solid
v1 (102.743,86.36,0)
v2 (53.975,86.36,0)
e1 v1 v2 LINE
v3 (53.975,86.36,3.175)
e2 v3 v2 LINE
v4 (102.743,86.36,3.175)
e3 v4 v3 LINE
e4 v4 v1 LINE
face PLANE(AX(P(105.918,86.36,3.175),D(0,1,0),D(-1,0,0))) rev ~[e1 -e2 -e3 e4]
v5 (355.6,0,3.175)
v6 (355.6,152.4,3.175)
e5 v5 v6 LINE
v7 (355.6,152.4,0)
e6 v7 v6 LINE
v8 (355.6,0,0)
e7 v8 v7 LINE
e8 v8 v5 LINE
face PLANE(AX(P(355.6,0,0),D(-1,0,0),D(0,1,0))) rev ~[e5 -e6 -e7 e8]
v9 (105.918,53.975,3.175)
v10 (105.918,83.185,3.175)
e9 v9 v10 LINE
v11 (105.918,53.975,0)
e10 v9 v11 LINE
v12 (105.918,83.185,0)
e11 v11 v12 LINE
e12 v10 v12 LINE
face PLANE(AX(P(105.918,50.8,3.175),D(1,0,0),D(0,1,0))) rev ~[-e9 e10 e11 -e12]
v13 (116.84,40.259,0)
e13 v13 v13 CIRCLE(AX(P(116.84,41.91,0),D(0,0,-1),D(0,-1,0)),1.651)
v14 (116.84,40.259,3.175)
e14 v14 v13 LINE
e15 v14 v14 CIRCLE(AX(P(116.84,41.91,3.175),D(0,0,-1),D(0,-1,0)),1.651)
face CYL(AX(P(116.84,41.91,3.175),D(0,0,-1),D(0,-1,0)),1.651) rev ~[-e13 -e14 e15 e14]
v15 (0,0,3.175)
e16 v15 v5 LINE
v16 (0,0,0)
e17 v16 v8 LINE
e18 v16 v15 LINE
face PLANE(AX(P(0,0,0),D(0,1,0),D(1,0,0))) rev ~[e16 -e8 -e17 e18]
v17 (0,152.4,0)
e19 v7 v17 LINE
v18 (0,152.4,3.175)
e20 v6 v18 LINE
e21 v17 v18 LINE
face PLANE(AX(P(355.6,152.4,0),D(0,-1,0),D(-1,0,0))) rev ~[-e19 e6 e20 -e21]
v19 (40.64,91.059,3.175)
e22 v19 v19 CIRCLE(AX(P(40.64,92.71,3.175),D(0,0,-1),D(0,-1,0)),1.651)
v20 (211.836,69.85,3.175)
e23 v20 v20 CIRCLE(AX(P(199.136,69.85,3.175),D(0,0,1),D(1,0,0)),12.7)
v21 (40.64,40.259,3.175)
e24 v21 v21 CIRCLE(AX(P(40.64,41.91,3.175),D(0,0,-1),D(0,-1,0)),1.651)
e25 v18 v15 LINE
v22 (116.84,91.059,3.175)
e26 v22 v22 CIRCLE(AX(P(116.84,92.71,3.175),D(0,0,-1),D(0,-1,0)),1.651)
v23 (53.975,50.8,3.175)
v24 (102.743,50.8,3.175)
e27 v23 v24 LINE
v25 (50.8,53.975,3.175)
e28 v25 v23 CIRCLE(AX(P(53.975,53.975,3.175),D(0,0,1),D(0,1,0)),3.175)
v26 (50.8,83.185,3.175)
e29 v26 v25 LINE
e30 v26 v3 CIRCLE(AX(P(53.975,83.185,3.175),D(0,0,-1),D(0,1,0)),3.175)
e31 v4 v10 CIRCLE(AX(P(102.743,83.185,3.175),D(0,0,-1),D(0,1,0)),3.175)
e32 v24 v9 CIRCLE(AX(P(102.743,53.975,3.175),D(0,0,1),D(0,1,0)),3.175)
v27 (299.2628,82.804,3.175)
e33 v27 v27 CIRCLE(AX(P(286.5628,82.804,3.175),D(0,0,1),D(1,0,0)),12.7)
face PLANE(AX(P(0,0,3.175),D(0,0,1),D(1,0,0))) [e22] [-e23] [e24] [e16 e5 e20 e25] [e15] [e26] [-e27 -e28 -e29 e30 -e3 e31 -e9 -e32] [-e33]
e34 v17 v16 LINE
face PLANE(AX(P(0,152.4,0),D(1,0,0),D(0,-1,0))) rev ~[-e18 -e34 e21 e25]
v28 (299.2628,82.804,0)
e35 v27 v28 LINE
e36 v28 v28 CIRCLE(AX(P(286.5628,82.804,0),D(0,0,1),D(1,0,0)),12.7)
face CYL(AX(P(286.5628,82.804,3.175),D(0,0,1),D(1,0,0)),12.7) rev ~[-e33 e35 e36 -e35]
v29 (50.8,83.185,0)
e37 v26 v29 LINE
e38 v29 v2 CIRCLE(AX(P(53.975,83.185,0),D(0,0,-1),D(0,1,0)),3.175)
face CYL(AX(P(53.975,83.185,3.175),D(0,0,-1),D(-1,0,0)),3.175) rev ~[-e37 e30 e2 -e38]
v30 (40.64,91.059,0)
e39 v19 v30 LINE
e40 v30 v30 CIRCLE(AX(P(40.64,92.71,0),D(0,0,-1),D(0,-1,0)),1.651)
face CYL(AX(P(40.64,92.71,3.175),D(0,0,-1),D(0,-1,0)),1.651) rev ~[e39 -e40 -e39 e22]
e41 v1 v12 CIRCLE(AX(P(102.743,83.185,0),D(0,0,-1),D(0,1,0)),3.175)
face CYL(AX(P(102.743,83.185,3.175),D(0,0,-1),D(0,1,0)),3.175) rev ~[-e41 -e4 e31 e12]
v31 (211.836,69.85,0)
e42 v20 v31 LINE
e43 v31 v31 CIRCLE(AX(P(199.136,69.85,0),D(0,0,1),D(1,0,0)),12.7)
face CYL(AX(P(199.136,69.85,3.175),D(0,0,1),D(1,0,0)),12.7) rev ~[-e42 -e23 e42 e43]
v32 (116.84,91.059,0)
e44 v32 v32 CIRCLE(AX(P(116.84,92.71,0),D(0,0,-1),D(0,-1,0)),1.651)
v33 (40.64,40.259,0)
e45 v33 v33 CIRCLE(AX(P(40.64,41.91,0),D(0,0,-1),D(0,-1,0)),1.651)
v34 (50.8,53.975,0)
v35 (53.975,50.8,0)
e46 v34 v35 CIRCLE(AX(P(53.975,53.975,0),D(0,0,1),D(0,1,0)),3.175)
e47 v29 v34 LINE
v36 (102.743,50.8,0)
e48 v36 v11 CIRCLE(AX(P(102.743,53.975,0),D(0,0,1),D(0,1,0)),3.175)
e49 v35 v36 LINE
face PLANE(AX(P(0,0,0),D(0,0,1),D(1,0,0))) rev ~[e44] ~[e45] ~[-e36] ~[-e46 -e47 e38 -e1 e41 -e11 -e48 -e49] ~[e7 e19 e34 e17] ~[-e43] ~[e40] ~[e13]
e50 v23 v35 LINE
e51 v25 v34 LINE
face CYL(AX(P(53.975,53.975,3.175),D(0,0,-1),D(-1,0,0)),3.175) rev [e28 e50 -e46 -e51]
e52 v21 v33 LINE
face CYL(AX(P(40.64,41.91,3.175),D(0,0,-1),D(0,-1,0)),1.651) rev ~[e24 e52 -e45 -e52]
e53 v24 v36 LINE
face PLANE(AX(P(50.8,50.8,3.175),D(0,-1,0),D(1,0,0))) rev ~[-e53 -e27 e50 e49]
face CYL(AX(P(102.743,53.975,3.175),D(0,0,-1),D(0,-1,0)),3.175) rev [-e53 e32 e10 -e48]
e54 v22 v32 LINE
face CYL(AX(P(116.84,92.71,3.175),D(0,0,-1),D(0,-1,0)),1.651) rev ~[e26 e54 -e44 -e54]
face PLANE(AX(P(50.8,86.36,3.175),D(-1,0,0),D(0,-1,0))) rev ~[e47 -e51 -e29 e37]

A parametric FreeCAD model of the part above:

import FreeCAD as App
import Part
import Sketcher
Q = App.Units.Quantity


def edges_at(feature, points):
    """Names of the edges that pass closest to the given points."""
    edges = feature.Shape.Edges
    near = lambda p: min(range(len(edges)), key=lambda i: edges[i].distToShape(Part.Vertex(*p))[0])
    return sorted({f"Edge{near(p) + 1}" for p in points})

doc = App.newDocument("Part")
params = doc.addObject("Spreadsheet::Sheet", "Params")
for row, (alias, value) in enumerate([
    ("sketch1_width", "14 in"),
    ("sketch1_height", "6 in"),
    ("pad1_length", "0.125 in"),
    ("sketch2_height", "1.4 in"),
    ("sketch2_width", "2.17 in"),
    ("pocket1_length", "0.125 in"),
    ("sketch3_diameter", "1 in"),
    ("pocket2_length", "0.125 in"),
    ("sketch4_diameter", "0.13 in"),
    ("hole_diameter", "0.13 in"),
    ("fillet_radius", "0.125 in"),
], start=1):
    params.set(f"A{row}", alias)
    params.set(f"B{row}", "=" + value)
    params.setAlias(f"B{row}", alias)

body = doc.addObject("PartDesign::Body", "Body")

sketch1 = doc.addObject("Sketcher::SketchObject", "Sketch")
body.addObject(sketch1)
sketch1.AttachmentSupport = (doc.XY_Plane, [""])
sketch1.MapMode = "FlatFace"
sketch1.addGeometry(Part.LineSegment(App.Vector(0, 152, 0), App.Vector(0, 0, 0)), False)
sketch1.addGeometry(Part.LineSegment(App.Vector(0, 0, 0), App.Vector(356, 0, 0)), False)
sketch1.addGeometry(Part.LineSegment(App.Vector(356, 0, 0), App.Vector(356, 152, 0)), False)
sketch1.addGeometry(Part.LineSegment(App.Vector(356, 152, 0), App.Vector(0, 152, 0)), False)
sketch1.addConstraint(Sketcher.Constraint("Coincident", 0, 2, 1, 1))
sketch1.addConstraint(Sketcher.Constraint("Coincident", 1, 2, 2, 1))
sketch1.addConstraint(Sketcher.Constraint("Coincident", 2, 2, 3, 1))
sketch1.addConstraint(Sketcher.Constraint("Coincident", 3, 2, 0, 1))
sketch1.addConstraint(Sketcher.Constraint("Vertical", 0))
sketch1.addConstraint(Sketcher.Constraint("Horizontal", 1))
sketch1.addConstraint(Sketcher.Constraint("Vertical", 2))
sketch1.addConstraint(Sketcher.Constraint("Horizontal", 3))
sketch1.addConstraint(Sketcher.Constraint("Coincident", 0, 2, -1, 1))
sketch1.addConstraint(Sketcher.Constraint("DistanceX", 1, 1, 1, 2, Q("14 in")))
sketch1.addConstraint(Sketcher.Constraint("DistanceY", 0, 2, 0, 1, Q("6 in")))
sketch1.setExpression("Constraints[9]", "Params.sketch1_width")
sketch1.setExpression("Constraints[10]", "Params.sketch1_height")
pad1 = doc.addObject("PartDesign::Pad", "Pad")
body.addObject(pad1)
pad1.Profile = sketch1
pad1.setExpression("Length", "Params.pad1_length")

sketch2 = doc.addObject("Sketcher::SketchObject", "Sketch001")
body.addObject(sketch2)
sketch2.AttachmentSupport = (doc.XY_Plane, [""])
sketch2.MapMode = "FlatFace"
sketch2.AttachmentOffset = App.Placement(App.Vector(0, 0, 0.125 * 25.4), App.Rotation())
sketch2.addGeometry(Part.LineSegment(App.Vector(51, 86, 0), App.Vector(51, 51, 0)), False)
sketch2.addGeometry(Part.LineSegment(App.Vector(51, 51, 0), App.Vector(106, 51, 0)), False)
sketch2.addGeometry(Part.LineSegment(App.Vector(106, 51, 0), App.Vector(106, 86, 0)), False)
sketch2.addGeometry(Part.LineSegment(App.Vector(106, 86, 0), App.Vector(51, 86, 0)), False)
sketch2.addConstraint(Sketcher.Constraint("Coincident", 0, 2, 1, 1))
sketch2.addConstraint(Sketcher.Constraint("Coincident", 1, 2, 2, 1))
sketch2.addConstraint(Sketcher.Constraint("Coincident", 2, 2, 3, 1))
sketch2.addConstraint(Sketcher.Constraint("Coincident", 3, 2, 0, 1))
sketch2.addConstraint(Sketcher.Constraint("Vertical", 0))
sketch2.addConstraint(Sketcher.Constraint("Horizontal", 1))
sketch2.addConstraint(Sketcher.Constraint("Vertical", 2))
sketch2.addConstraint(Sketcher.Constraint("Horizontal", 3))
sketch2.addConstraint(Sketcher.Constraint("DistanceY", 0, 2, 0, 1, Q("1.4 in")))
sketch2.addConstraint(Sketcher.Constraint("DistanceX", -1, 1, 0, 2, Q("2 in")))
sketch2.addConstraint(Sketcher.Constraint("DistanceY", -1, 1, 0, 2, Q("2 in")))
sketch2.addConstraint(Sketcher.Constraint("DistanceX", 1, 1, 1, 2, Q("2.17 in")))
sketch2.setExpression("Constraints[8]", "Params.sketch2_height")
sketch2.setExpression("Constraints[11]", "Params.sketch2_width")
pocket1 = doc.addObject("PartDesign::Pocket", "Pocket")
body.addObject(pocket1)
pocket1.Profile = sketch2
pocket1.setExpression("Length", "Params.pocket1_length")

sketch3 = doc.addObject("Sketcher::SketchObject", "Sketch002")
body.addObject(sketch3)
sketch3.AttachmentSupport = (doc.XY_Plane, [""])
sketch3.MapMode = "FlatFace"
sketch3.AttachmentOffset = App.Placement(App.Vector(0, 0, 0.125 * 25.4), App.Rotation())
sketch3.addGeometry(Part.Circle(App.Vector(199, 70, 0), App.Vector(0, 0, 1), 13), False)
sketch3.addGeometry(Part.Circle(App.Vector(287, 83, 0), App.Vector(0, 0, 1), 13), False)
sketch3.addConstraint(Sketcher.Constraint("Equal", 0, 1))
sketch3.addConstraint(Sketcher.Constraint("Diameter", 0, Q("1 in")))
sketch3.addConstraint(Sketcher.Constraint("DistanceX", -1, 1, 0, 3, Q("7.84 in")))
sketch3.addConstraint(Sketcher.Constraint("DistanceY", -1, 1, 0, 3, Q("2.75 in")))
sketch3.addConstraint(Sketcher.Constraint("DistanceY", -1, 1, 1, 3, Q("3.26 in")))
sketch3.addConstraint(Sketcher.Constraint("DistanceX", -1, 1, 1, 3, Q("11.282 in")))
sketch3.setExpression("Constraints[1]", "Params.sketch3_diameter")
pocket2 = doc.addObject("PartDesign::Pocket", "Pocket001")
body.addObject(pocket2)
pocket2.Profile = sketch3
pocket2.setExpression("Length", "Params.pocket2_length")

sketch4 = doc.addObject("Sketcher::SketchObject", "Sketch003")
body.addObject(sketch4)
sketch4.AttachmentSupport = (doc.XY_Plane, [""])
sketch4.MapMode = "FlatFace"
sketch4.AttachmentOffset = App.Placement(App.Vector(0, 0, 0.125 * 25.4), App.Rotation())
sketch4.addGeometry(Part.Circle(App.Vector(40.6, 41.9, 0), App.Vector(0, 0, 1), 1.7), False)
sketch4.addGeometry(Part.Circle(App.Vector(116.8, 41.9, 0), App.Vector(0, 0, 1), 1.7), False)
sketch4.addGeometry(Part.Circle(App.Vector(116.8, 92.7, 0), App.Vector(0, 0, 1), 1.7), False)
sketch4.addGeometry(Part.Circle(App.Vector(40.6, 92.7, 0), App.Vector(0, 0, 1), 1.7), False)
sketch4.addConstraint(Sketcher.Constraint("Equal", 0, 1))
sketch4.addConstraint(Sketcher.Constraint("Equal", 1, 2))
sketch4.addConstraint(Sketcher.Constraint("Equal", 2, 3))
sketch4.addConstraint(Sketcher.Constraint("Horizontal", 0, 3, 1, 3))
sketch4.addConstraint(Sketcher.Constraint("Horizontal", 2, 3, 3, 3))
sketch4.addConstraint(Sketcher.Constraint("Vertical", 1, 3, 2, 3))
sketch4.addConstraint(Sketcher.Constraint("Vertical", 0, 3, 3, 3))
sketch4.addConstraint(Sketcher.Constraint("Diameter", 0, Q("0.13 in")))
sketch4.addConstraint(Sketcher.Constraint("DistanceX", 0, 3, 1, 3, Q("3 in")))
sketch4.addConstraint(Sketcher.Constraint("DistanceY", 1, 3, 2, 3, Q("2 in")))
sketch4.addConstraint(Sketcher.Constraint("DistanceX", -1, 1, 0, 3, Q("1.6 in")))
sketch4.addConstraint(Sketcher.Constraint("DistanceY", -1, 1, 0, 3, Q("1.65 in")))
sketch4.setExpression("Constraints[7]", "Params.sketch4_diameter")
doc.recompute()
hole = doc.addObject("PartDesign::Hole", "Hole")
body.addObject(hole)
hole.Profile = sketch4
hole.ThreadType = "None"
hole.setExpression("Diameter", "Params.hole_diameter")
hole.DepthType = "ThroughAll"
doc.recompute()

fillet = doc.addObject("PartDesign::Fillet", "Fillet")
body.addObject(fillet)
fillet.Base = (hole, edges_at(hole, [
    (50.8, 50.8, 1.587),
    (105.918, 86.36, 1.587),
    (105.918, 50.8, 1.587),
    (50.8, 86.36, 1.587),
]))
fillet.setExpression("Radius", "Params.fillet_radius")

doc.recompute()
